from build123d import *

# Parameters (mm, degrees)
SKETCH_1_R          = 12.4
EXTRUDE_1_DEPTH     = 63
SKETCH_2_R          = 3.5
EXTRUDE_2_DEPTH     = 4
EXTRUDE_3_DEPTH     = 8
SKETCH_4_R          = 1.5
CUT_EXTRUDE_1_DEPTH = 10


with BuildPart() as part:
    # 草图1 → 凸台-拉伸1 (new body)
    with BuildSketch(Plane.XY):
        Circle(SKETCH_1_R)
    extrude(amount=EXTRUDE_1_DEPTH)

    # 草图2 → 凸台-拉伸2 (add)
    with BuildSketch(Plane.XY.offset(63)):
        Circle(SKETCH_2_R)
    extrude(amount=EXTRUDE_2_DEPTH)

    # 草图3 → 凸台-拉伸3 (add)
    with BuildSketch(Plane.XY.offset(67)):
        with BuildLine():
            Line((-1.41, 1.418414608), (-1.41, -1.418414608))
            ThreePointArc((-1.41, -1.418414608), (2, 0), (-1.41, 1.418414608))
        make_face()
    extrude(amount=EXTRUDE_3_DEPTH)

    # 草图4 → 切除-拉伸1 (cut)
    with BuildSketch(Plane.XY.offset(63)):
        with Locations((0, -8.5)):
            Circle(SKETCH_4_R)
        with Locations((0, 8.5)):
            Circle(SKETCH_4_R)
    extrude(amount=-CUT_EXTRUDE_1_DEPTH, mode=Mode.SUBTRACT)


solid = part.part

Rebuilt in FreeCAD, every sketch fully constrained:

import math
import FreeCAD as App
import Part
import Sketcher
from FreeCAD import Vector

doc = App.newDocument("Part")
body = doc.addObject("PartDesign::Body", "Body")

# Sketch on XY plane
sketch1 = body.newObject("Sketcher::SketchObject", "Sketch")
sketch1.AttachmentSupport = (doc.getObject("XY_Plane"), [""])
sketch1.MapMode = "FlatFace"
sketch1.addGeometry(Part.Circle(Vector(0, 0, 0), Vector(0, 0, 1), 12.4), False)
sketch1.addConstraint(Sketcher.Constraint("Coincident", 0, 3, -1, 1))
sketch1.addConstraint(Sketcher.Constraint("Diameter", 0, 24.8))
pad1 = body.newObject("PartDesign::Pad", "Pad")
pad1.Profile = sketch1
pad1.Length = 63

# Sketch on XY plane
sketch2 = body.newObject("Sketcher::SketchObject", "Sketch001")
sketch2.AttachmentSupport = (doc.getObject("XY_Plane"), [""])
sketch2.MapMode = "FlatFace"
sketch2.AttachmentOffset = App.Placement(Vector(0, 0, 63), App.Rotation())
sketch2.addGeometry(Part.Circle(Vector(0, 0, 0), Vector(0, 0, 1), 3.5), False)
sketch2.addConstraint(Sketcher.Constraint("Coincident", 0, 3, -1, 1))
sketch2.addConstraint(Sketcher.Constraint("Diameter", 0, 7.0))
pad2 = body.newObject("PartDesign::Pad", "Pad001")
pad2.Profile = sketch2
pad2.Length = 4

# Sketch on XY plane
sketch3 = body.newObject("Sketcher::SketchObject", "Sketch002")
sketch3.AttachmentSupport = (doc.getObject("XY_Plane"), [""])
sketch3.MapMode = "FlatFace"
sketch3.AttachmentOffset = App.Placement(Vector(0, 0, 67), App.Rotation())
sketch3.addGeometry(Part.LineSegment(Vector(-1.41, 1.418415, 0), Vector(-1.41, -1.418415, 0)), False)
sketch3.addGeometry(Part.ArcOfCircle(Part.Circle(Vector(0, 0, 0), Vector(0, 0, 1), 2), math.radians(-134.829544), math.radians(134.829544)), False)
sketch3.addConstraint(Sketcher.Constraint("Coincident", 0, 1, 1, 2))
sketch3.addConstraint(Sketcher.Constraint("Coincident", 1, 1, 0, 2))
sketch3.addConstraint(Sketcher.Constraint("Vertical", 0))
sketch3.addConstraint(Sketcher.Constraint("Coincident", 1, 3, -1, 1))
sketch3.addConstraint(Sketcher.Constraint("Radius", 1, 2.0))
sketch3.addConstraint(Sketcher.Constraint("DistanceX", 0, 1, -1, 1, 1.41))
pad3 = body.newObject("PartDesign::Pad", "Pad002")
pad3.Profile = sketch3
pad3.Length = 8

# Sketch on XY plane
sketch4 = body.newObject("Sketcher::SketchObject", "Sketch003")
sketch4.AttachmentSupport = (doc.getObject("XY_Plane"), [""])
sketch4.MapMode = "FlatFace"
sketch4.AttachmentOffset = App.Placement(Vector(0, 0, 63), App.Rotation())
sketch4.addGeometry(Part.Circle(Vector(0, -8.5, 0), Vector(0, 0, 1), 1.5), False)
sketch4.addGeometry(Part.Circle(Vector(0, 8.5, 0), Vector(0, 0, 1), 1.5), False)
sketch4.addConstraint(Sketcher.Constraint("Equal", 0, 1))
sketch4.addConstraint(Sketcher.Constraint("Symmetric", 0, 3, 1, 3, -1, 1))
sketch4.addConstraint(Sketcher.Constraint("PointOnObject", 0, 3, -2))
sketch4.addConstraint(Sketcher.Constraint("Diameter", 0, 3.0))
sketch4.addConstraint(Sketcher.Constraint("DistanceY", 0, 3, 1, 3, 17.0))
pocket1 = body.newObject("PartDesign::Pocket", "Pocket")
pocket1.Profile = sketch4
pocket1.Length = 10

doc.recompute()
